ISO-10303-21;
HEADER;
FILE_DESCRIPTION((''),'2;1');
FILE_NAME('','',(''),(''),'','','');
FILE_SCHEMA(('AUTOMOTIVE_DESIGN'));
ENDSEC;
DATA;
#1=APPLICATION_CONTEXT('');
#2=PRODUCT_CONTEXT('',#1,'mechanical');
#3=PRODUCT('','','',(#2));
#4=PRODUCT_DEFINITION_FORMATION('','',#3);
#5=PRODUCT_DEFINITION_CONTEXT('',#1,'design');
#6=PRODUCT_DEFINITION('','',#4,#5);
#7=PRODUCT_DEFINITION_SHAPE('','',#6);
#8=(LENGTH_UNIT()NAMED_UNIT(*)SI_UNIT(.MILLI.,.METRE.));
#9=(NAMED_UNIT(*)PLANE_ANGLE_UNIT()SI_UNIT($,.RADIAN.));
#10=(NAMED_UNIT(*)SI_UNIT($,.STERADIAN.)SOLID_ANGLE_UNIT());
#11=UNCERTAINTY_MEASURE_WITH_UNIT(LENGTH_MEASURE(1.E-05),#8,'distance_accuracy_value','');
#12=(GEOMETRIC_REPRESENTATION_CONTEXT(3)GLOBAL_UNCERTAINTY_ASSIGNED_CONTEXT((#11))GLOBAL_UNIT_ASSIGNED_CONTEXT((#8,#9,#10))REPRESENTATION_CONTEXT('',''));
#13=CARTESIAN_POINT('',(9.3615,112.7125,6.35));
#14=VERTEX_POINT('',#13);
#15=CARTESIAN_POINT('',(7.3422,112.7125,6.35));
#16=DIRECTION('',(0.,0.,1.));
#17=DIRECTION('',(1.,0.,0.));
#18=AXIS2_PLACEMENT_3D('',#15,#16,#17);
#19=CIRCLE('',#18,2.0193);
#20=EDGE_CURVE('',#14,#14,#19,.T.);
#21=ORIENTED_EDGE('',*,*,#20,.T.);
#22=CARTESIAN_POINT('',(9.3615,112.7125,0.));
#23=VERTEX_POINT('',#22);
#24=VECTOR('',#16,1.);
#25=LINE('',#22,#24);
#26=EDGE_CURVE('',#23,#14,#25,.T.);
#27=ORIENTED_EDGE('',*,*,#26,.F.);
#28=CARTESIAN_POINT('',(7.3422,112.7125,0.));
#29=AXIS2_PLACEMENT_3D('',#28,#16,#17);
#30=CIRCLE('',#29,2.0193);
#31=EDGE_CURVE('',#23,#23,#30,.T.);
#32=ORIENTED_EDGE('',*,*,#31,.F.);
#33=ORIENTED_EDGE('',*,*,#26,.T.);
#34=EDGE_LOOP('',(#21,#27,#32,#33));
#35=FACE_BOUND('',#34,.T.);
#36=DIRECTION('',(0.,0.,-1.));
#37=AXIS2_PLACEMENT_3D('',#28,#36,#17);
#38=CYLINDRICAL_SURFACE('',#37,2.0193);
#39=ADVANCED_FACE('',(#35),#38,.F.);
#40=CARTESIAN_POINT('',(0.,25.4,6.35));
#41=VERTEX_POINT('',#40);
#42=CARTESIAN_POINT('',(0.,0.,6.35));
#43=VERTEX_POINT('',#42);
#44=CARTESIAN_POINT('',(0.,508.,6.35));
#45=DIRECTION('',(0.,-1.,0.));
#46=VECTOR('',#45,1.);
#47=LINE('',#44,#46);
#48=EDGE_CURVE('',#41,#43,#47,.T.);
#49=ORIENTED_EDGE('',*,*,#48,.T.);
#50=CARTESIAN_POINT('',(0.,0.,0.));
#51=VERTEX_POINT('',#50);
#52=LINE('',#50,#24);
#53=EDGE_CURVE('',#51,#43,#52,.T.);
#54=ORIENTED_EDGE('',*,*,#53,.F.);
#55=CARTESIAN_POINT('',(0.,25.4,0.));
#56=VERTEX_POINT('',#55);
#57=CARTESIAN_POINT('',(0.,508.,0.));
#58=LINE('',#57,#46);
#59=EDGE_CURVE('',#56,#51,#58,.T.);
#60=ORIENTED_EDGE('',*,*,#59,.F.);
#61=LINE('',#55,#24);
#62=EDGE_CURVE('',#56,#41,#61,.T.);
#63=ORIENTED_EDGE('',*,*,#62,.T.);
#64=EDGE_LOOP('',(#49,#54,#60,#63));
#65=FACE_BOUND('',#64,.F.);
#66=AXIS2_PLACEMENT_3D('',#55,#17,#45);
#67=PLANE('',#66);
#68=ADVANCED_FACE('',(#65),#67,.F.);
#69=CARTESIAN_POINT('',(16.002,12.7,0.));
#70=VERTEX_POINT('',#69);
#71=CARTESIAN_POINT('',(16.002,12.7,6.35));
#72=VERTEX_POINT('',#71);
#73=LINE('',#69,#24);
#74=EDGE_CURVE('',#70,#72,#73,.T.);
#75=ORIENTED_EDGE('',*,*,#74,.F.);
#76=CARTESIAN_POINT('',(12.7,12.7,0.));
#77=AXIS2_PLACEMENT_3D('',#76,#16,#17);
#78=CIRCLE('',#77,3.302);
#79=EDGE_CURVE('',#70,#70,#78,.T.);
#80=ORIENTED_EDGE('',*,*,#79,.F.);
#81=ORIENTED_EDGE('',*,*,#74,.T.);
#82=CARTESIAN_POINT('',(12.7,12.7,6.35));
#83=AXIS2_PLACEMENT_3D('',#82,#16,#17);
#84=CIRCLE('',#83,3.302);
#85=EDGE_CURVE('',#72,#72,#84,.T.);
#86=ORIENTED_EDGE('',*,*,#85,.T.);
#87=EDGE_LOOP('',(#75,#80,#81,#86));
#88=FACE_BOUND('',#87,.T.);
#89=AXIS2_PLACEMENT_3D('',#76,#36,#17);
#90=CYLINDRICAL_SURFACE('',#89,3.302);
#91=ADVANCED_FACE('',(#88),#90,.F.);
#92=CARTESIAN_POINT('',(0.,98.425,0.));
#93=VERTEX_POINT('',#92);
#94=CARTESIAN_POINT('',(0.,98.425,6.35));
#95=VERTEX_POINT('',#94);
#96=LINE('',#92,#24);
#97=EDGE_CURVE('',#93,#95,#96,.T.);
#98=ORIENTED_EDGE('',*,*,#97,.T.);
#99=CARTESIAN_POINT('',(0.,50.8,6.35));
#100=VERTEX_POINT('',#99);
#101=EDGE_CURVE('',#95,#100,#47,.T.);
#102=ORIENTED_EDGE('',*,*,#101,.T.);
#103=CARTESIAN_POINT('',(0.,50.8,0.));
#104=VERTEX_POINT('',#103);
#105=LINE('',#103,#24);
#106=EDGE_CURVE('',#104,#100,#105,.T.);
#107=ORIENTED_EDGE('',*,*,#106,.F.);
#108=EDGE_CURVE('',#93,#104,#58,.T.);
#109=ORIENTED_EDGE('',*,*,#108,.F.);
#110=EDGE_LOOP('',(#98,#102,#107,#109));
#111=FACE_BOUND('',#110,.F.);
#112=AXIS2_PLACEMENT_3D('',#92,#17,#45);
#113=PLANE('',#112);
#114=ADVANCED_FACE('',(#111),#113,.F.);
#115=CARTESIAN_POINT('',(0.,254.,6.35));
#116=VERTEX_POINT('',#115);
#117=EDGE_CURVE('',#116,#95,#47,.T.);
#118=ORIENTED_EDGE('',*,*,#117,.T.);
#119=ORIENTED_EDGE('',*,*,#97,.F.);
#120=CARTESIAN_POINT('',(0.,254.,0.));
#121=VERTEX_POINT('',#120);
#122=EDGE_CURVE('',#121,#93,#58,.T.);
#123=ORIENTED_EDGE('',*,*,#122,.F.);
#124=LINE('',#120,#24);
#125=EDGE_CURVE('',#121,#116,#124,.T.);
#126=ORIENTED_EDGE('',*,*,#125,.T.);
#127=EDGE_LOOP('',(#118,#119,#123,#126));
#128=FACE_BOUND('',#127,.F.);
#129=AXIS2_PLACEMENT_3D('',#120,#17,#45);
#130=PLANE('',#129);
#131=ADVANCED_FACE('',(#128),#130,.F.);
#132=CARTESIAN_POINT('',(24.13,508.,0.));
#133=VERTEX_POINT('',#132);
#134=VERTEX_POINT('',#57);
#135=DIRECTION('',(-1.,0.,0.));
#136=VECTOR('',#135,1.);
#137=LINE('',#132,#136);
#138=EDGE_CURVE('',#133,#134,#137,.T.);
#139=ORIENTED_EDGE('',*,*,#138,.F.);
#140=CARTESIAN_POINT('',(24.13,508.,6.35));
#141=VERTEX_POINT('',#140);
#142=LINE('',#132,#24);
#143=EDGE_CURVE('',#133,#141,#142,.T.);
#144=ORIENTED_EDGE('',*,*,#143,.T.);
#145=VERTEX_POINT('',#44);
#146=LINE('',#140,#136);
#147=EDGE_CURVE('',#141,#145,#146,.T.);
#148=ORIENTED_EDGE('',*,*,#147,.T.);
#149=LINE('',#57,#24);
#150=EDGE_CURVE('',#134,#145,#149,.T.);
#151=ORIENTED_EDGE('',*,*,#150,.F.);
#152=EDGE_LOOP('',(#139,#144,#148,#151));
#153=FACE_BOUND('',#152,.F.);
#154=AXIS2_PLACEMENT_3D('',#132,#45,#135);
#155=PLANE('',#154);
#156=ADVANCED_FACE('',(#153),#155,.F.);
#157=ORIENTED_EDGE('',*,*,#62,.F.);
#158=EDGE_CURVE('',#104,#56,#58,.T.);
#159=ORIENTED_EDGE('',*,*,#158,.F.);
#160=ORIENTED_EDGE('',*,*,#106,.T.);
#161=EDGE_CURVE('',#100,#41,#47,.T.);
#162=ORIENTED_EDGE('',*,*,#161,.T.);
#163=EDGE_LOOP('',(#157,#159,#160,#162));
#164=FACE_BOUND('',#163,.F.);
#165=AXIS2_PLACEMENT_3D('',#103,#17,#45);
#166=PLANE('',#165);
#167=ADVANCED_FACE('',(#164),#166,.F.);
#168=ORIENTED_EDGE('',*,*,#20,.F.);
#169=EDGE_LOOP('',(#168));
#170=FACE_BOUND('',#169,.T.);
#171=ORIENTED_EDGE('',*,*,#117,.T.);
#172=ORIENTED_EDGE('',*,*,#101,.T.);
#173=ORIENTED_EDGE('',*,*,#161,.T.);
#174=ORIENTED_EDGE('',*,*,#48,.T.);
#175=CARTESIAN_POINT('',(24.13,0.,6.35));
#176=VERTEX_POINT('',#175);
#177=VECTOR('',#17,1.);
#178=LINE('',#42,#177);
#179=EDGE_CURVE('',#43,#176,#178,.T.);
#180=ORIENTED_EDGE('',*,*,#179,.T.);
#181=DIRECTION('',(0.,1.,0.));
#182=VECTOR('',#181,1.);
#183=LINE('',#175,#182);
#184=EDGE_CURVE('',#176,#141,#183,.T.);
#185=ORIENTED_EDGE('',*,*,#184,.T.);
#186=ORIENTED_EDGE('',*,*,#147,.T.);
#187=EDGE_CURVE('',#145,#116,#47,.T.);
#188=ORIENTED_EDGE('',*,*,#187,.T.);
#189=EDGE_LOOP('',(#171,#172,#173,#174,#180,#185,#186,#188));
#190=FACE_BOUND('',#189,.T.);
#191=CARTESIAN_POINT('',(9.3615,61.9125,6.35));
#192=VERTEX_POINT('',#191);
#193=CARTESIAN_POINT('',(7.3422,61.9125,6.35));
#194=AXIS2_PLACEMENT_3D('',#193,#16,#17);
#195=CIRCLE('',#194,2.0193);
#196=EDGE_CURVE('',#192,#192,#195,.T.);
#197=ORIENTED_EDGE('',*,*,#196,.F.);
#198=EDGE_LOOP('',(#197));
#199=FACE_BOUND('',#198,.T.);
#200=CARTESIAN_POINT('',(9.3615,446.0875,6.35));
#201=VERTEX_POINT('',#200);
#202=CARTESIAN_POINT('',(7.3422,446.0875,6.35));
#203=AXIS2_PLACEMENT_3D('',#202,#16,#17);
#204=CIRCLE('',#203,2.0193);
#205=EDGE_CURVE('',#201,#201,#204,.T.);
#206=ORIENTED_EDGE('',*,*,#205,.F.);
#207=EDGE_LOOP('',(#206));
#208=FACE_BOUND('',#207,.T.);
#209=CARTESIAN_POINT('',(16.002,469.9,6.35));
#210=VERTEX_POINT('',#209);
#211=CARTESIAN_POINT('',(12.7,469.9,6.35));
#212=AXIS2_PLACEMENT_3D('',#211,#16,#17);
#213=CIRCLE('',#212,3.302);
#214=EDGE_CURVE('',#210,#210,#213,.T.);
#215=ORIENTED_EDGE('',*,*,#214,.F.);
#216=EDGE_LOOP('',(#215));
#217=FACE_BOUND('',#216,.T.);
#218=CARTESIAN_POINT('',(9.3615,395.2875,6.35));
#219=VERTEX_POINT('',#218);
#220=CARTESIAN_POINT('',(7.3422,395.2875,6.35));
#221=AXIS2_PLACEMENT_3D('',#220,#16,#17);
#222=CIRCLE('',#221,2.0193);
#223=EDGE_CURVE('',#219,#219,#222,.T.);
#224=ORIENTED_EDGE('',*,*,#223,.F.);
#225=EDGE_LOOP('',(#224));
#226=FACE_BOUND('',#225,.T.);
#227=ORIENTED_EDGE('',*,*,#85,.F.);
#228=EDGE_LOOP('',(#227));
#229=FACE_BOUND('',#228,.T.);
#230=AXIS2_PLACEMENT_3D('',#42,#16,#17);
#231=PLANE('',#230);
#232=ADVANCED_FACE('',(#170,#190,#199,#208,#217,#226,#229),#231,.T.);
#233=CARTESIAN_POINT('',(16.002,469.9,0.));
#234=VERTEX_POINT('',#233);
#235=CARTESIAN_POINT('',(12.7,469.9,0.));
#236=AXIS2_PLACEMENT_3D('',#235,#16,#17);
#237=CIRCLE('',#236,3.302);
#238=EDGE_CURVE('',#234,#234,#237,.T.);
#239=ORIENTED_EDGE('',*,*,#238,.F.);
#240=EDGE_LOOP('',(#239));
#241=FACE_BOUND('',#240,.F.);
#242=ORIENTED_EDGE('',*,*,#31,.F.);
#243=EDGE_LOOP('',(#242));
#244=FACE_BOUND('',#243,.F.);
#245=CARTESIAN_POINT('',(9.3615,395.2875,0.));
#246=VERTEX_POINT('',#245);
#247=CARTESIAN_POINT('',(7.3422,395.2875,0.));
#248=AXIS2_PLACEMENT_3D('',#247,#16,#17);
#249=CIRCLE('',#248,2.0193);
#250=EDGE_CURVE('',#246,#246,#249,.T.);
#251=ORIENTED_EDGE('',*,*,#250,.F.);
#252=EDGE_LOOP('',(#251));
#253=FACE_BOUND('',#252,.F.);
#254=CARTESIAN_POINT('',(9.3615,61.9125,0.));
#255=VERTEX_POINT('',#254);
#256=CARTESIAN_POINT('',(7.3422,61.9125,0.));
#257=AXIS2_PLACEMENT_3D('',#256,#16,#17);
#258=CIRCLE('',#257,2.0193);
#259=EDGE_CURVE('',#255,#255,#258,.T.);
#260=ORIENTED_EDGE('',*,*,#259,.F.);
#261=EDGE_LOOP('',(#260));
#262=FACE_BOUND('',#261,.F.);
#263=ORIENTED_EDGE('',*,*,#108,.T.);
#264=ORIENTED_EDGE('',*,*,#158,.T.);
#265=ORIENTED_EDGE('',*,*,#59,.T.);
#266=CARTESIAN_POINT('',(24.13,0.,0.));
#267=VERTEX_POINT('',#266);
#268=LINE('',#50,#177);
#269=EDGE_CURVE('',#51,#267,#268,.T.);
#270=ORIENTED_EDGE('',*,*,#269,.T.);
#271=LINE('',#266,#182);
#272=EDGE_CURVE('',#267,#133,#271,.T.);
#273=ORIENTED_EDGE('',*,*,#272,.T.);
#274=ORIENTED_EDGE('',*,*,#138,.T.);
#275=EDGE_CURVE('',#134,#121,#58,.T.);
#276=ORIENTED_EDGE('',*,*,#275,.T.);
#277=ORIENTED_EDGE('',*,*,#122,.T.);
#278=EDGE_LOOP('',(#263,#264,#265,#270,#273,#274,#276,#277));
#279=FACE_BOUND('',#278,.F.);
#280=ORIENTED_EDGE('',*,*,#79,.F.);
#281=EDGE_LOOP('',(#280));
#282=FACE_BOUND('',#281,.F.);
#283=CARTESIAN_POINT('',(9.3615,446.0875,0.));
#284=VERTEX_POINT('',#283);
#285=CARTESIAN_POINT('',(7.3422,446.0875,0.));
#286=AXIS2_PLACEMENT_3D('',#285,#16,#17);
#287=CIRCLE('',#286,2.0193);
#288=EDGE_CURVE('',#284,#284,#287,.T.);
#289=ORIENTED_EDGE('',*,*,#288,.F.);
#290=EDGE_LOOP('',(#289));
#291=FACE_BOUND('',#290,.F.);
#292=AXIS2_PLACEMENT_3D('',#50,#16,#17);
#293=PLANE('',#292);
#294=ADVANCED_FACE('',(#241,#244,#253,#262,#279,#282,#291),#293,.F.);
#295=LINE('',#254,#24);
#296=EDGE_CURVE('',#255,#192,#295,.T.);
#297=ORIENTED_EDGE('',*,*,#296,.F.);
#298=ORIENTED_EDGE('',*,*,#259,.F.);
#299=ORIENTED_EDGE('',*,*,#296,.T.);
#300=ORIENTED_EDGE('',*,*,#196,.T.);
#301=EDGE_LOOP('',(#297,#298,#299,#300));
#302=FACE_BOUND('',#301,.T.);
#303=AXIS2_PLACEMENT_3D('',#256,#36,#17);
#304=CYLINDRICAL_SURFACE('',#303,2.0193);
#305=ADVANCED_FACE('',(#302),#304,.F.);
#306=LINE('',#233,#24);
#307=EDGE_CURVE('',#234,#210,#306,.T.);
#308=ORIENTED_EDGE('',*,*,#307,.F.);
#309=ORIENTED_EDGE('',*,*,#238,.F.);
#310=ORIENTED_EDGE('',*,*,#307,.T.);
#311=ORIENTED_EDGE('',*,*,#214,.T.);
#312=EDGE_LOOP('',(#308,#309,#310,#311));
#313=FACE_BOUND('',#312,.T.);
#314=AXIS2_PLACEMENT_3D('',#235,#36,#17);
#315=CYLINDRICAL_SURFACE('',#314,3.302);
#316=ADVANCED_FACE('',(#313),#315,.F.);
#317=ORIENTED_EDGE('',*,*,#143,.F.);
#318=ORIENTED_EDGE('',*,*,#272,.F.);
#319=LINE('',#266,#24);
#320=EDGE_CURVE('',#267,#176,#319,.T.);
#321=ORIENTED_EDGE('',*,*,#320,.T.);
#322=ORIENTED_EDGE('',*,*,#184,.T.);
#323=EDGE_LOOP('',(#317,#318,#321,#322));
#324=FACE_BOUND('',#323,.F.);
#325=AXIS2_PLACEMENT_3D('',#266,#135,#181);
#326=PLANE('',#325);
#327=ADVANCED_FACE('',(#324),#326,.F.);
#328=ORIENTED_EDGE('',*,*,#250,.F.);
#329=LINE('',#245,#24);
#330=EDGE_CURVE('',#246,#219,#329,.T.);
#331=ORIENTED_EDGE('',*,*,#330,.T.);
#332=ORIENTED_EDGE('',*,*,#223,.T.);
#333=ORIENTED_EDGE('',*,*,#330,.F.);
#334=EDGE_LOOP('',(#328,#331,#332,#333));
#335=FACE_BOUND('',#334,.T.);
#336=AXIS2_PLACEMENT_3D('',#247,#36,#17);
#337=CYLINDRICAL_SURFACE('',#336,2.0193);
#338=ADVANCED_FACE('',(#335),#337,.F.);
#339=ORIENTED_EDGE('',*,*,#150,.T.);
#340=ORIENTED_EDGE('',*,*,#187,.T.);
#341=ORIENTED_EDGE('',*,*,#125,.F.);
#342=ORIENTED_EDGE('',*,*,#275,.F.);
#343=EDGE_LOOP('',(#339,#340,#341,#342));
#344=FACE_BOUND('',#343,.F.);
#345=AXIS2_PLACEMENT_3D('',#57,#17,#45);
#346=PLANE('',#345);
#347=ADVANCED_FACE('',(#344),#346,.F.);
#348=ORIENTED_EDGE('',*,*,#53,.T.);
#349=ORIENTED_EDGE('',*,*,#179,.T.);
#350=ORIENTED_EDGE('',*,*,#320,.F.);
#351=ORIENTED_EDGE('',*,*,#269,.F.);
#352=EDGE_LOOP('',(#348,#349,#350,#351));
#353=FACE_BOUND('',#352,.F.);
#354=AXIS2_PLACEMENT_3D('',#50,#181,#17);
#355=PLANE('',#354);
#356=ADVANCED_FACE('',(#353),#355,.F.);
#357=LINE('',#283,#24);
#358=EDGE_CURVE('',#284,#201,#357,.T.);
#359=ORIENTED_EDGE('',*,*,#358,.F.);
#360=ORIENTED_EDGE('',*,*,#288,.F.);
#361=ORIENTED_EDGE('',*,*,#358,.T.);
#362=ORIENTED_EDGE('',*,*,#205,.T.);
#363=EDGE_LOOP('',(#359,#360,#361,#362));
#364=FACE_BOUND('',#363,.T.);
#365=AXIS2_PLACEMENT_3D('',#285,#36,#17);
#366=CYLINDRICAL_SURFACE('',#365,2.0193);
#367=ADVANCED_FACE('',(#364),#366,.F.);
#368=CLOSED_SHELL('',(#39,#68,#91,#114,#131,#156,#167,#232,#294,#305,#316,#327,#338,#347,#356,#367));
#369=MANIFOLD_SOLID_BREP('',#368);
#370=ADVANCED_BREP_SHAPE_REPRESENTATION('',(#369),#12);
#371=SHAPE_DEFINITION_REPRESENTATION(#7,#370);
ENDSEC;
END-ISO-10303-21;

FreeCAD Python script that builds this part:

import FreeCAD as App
import Part
import Sketcher

V = App.Vector
Q = App.Units.Quantity

doc = App.newDocument("Part")
body = doc.addObject("PartDesign::Body", "Body")

# Sketch on XY plane
sketch1 = doc.addObject("Sketcher::SketchObject", "Sketch")
body.addObject(sketch1)
sketch1.AttachmentSupport = (doc.XY_Plane, [""])
sketch1.MapMode = "FlatFace"
sketch1.addGeometry([
    Part.LineSegment(V(0, 508, 0), V(0, 0, 0)),  # 0
    Part.LineSegment(V(0, 0, 0), V(24.1, 0, 0)),  # 1
    Part.LineSegment(V(24.1, 0, 0), V(24.1, 508, 0)),  # 2
    Part.LineSegment(V(24.1, 508, 0), V(0, 508, 0)),  # 3
    Part.Circle(V(7.3, 61.9, 0), V(0, 0, 1), 2),  # 4
    Part.Circle(V(7.3, 112.7, 0), V(0, 0, 1), 2),  # 5
    Part.Circle(V(12.7, 12.7, 0), V(0, 0, 1), 3.3),  # 6
    Part.Circle(V(7.3, 395.3, 0), V(0, 0, 1), 2),  # 7
    Part.Circle(V(7.3, 446.1, 0), V(0, 0, 1), 2),  # 8
    Part.Circle(V(12.7, 469.9, 0), V(0, 0, 1), 3.3),  # 9
], False)
sketch1.addConstraint([
    Sketcher.Constraint("Coincident", 0, 2, 1, 1),
    Sketcher.Constraint("Coincident", 1, 2, 2, 1),
    Sketcher.Constraint("Coincident", 2, 2, 3, 1),
    Sketcher.Constraint("Coincident", 3, 2, 0, 1),
    Sketcher.Constraint("Vertical", 0),
    Sketcher.Constraint("Horizontal", 1),
    Sketcher.Constraint("Vertical", 2),
    Sketcher.Constraint("Horizontal", 3),
    Sketcher.Constraint("Coincident", 0, 2, -1, 1),
    Sketcher.Constraint("Equal", 4, 5),
    Sketcher.Constraint("Equal", 5, 7),
    Sketcher.Constraint("Equal", 7, 8),
    Sketcher.Constraint("Equal", 6, 9),
    Sketcher.Constraint("Vertical", 4, 3, 5, 3),
    Sketcher.Constraint("Vertical", 5, 3, 7, 3),
    Sketcher.Constraint("Vertical", 7, 3, 8, 3),
    Sketcher.Constraint("Vertical", 6, 3, 9, 3),
    Sketcher.Constraint("Diameter", 6, Q("0.26 in")),
    Sketcher.Constraint("DistanceY", 0, 2, 0, 1, Q("20 in")),
    Sketcher.Constraint("Diameter", 4, Q("0.159 in")),
    Sketcher.Constraint("DistanceX", 1, 1, 1, 2, Q("0.95 in")),
    Sketcher.Constraint("DistanceY", 4, 3, 5, 3, Q("2 in")),
    Sketcher.Constraint("DistanceY", 7, 3, 8, 3, Q("2 in")),
    Sketcher.Constraint("DistanceY", 6, 3, 9, 3, Q("18 in")),
    Sketcher.Constraint("DistanceX", -1, 1, 6, 3, Q("0.5 in")),
    Sketcher.Constraint("DistanceY", -1, 1, 6, 3, Q("0.5 in")),
    Sketcher.Constraint("DistanceY", -1, 1, 4, 3, Q("2.4375 in")),
    Sketcher.Constraint("DistanceY", -1, 1, 7, 3, Q("15.5625 in")),
    Sketcher.Constraint("DistanceX", -1, 1, 4, 3, 7.3422),
])
pad1 = doc.addObject("PartDesign::Pad", "Pad")
body.addObject(pad1)
pad1.Profile = sketch1
pad1.Length = Q("0.25 in")

doc.recompute()
